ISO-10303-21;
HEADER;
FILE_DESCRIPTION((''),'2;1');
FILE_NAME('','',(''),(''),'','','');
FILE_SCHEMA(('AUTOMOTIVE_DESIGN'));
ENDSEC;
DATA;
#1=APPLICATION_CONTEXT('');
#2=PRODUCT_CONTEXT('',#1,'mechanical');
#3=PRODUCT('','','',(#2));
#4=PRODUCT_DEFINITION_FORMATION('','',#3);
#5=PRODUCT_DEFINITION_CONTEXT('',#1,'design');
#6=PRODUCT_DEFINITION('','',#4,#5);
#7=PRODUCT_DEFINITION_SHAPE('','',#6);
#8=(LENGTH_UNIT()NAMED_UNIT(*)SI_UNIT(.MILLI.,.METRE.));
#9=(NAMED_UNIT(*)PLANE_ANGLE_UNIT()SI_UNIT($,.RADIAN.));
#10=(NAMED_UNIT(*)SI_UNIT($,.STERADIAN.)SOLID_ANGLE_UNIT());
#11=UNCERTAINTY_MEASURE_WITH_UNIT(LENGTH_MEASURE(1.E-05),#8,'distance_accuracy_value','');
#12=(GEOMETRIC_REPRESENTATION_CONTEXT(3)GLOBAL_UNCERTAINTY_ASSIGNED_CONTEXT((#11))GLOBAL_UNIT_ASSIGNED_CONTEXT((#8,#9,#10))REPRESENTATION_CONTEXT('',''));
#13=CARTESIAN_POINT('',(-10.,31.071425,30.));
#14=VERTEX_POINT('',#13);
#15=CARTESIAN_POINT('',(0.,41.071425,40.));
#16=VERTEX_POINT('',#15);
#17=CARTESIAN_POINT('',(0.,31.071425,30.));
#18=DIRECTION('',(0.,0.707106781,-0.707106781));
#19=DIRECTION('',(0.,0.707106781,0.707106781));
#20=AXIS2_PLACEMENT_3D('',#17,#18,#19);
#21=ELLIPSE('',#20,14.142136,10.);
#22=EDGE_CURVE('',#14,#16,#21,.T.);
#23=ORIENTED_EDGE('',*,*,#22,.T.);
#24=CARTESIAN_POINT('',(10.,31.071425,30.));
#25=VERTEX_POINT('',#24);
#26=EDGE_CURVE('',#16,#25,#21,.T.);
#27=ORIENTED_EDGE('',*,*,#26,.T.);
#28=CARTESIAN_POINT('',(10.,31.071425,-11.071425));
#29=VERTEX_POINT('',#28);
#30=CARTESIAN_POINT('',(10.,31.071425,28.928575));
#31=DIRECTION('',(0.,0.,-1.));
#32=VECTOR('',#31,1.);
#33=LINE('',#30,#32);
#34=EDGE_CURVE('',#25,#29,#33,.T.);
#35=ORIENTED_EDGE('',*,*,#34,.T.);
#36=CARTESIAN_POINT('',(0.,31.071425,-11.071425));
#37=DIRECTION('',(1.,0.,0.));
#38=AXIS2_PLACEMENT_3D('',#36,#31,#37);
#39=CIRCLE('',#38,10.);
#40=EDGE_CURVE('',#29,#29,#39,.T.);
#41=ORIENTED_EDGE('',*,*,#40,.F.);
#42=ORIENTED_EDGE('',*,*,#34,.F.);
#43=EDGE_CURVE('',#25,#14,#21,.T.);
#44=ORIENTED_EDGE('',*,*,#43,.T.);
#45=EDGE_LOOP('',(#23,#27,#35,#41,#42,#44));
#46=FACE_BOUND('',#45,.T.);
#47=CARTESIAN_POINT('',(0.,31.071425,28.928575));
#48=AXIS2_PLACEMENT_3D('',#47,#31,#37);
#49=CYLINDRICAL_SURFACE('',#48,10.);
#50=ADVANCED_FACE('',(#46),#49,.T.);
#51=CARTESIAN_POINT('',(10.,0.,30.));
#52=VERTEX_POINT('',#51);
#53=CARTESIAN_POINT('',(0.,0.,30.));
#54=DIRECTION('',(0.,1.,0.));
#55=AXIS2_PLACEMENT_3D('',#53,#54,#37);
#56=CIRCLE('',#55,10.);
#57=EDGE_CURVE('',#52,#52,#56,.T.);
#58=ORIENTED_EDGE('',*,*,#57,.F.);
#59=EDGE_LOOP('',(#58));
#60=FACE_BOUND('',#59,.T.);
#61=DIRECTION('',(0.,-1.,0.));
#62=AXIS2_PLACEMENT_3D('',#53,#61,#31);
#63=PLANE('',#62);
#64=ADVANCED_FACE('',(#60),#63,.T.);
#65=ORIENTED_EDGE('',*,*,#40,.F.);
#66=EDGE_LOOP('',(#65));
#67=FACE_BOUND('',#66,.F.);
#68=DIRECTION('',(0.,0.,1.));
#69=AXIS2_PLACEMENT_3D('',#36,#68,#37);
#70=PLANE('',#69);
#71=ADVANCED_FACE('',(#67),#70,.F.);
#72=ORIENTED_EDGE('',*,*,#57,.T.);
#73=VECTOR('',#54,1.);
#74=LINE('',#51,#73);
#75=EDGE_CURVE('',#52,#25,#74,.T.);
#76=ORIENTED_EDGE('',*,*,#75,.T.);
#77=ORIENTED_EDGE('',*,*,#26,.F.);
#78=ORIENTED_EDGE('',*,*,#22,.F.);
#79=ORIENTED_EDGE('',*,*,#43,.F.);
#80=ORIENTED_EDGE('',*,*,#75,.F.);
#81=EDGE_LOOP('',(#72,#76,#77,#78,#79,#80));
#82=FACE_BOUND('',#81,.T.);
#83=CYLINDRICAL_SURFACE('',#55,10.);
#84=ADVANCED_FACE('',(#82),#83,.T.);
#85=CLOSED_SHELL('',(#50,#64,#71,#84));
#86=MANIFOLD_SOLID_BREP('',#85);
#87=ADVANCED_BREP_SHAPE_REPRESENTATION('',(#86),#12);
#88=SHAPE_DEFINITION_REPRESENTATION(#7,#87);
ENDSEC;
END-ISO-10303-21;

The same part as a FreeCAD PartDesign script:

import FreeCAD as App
import Part
import Sketcher
from FreeCAD import Vector
Q = App.Units.Quantity

doc = App.newDocument("Part")
body = doc.addObject("PartDesign::Body", "Body")

sketch1 = body.newObject("Sketcher::SketchObject", "Sketch")
sketch1.AttachmentSupport = (doc.getObject("XZ_Plane"), [""])
sketch1.MapMode = "FlatFace"
sketch1.addGeometry(Part.Circle(Vector(0, 30, 0), Vector(0, 0, 1), 10), False)
sketch1.addConstraint([
    Sketcher.Constraint("PointOnObject", 0, 3, -2),
    Sketcher.Constraint("Diameter", 0, Q("20 mm")),
    Sketcher.Constraint("DistanceY", -1, 1, 0, 3, Q("30 mm")),
])

sketch2 = body.newObject("Sketcher::SketchObject", "Sketch001")
sketch2.AttachmentSupport = (doc.getObject("YZ_Plane"), [""])
sketch2.MapMode = "FlatFace"
sketch2.addGeometry([
    Part.LineSegment(Vector(0, 29, 0), Vector(30, 29, 0)),
    Part.LineSegment(Vector(30, 29, 0), Vector(30, -11, 0)),
], False)
sketch2.addConstraint([
    Sketcher.Constraint("Coincident", 0, 2, 1, 1),
    Sketcher.Constraint("Horizontal", 0),
    Sketcher.Constraint("Vertical", 1),
    Sketcher.Constraint("PointOnObject", 0, 1, -2),
    Sketcher.Constraint("DistanceX", 0, 1, 0, 2, Q("30 mm")),
    Sketcher.Constraint("DistanceY", 1, 2, 1, 1, Q("40 mm")),
    Sketcher.Constraint("DistanceY", -1, 1, 0, 1, Q("28.928575 mm")),
])
doc.recompute()

additivepipe = body.newObject("PartDesign::AdditivePipe", "AdditivePipe")
additivepipe.Profile = sketch1
additivepipe.Spine = (sketch2, ["Edge1", "Edge2"])
additivepipe.Transition = "Right corner"

doc.recompute()
